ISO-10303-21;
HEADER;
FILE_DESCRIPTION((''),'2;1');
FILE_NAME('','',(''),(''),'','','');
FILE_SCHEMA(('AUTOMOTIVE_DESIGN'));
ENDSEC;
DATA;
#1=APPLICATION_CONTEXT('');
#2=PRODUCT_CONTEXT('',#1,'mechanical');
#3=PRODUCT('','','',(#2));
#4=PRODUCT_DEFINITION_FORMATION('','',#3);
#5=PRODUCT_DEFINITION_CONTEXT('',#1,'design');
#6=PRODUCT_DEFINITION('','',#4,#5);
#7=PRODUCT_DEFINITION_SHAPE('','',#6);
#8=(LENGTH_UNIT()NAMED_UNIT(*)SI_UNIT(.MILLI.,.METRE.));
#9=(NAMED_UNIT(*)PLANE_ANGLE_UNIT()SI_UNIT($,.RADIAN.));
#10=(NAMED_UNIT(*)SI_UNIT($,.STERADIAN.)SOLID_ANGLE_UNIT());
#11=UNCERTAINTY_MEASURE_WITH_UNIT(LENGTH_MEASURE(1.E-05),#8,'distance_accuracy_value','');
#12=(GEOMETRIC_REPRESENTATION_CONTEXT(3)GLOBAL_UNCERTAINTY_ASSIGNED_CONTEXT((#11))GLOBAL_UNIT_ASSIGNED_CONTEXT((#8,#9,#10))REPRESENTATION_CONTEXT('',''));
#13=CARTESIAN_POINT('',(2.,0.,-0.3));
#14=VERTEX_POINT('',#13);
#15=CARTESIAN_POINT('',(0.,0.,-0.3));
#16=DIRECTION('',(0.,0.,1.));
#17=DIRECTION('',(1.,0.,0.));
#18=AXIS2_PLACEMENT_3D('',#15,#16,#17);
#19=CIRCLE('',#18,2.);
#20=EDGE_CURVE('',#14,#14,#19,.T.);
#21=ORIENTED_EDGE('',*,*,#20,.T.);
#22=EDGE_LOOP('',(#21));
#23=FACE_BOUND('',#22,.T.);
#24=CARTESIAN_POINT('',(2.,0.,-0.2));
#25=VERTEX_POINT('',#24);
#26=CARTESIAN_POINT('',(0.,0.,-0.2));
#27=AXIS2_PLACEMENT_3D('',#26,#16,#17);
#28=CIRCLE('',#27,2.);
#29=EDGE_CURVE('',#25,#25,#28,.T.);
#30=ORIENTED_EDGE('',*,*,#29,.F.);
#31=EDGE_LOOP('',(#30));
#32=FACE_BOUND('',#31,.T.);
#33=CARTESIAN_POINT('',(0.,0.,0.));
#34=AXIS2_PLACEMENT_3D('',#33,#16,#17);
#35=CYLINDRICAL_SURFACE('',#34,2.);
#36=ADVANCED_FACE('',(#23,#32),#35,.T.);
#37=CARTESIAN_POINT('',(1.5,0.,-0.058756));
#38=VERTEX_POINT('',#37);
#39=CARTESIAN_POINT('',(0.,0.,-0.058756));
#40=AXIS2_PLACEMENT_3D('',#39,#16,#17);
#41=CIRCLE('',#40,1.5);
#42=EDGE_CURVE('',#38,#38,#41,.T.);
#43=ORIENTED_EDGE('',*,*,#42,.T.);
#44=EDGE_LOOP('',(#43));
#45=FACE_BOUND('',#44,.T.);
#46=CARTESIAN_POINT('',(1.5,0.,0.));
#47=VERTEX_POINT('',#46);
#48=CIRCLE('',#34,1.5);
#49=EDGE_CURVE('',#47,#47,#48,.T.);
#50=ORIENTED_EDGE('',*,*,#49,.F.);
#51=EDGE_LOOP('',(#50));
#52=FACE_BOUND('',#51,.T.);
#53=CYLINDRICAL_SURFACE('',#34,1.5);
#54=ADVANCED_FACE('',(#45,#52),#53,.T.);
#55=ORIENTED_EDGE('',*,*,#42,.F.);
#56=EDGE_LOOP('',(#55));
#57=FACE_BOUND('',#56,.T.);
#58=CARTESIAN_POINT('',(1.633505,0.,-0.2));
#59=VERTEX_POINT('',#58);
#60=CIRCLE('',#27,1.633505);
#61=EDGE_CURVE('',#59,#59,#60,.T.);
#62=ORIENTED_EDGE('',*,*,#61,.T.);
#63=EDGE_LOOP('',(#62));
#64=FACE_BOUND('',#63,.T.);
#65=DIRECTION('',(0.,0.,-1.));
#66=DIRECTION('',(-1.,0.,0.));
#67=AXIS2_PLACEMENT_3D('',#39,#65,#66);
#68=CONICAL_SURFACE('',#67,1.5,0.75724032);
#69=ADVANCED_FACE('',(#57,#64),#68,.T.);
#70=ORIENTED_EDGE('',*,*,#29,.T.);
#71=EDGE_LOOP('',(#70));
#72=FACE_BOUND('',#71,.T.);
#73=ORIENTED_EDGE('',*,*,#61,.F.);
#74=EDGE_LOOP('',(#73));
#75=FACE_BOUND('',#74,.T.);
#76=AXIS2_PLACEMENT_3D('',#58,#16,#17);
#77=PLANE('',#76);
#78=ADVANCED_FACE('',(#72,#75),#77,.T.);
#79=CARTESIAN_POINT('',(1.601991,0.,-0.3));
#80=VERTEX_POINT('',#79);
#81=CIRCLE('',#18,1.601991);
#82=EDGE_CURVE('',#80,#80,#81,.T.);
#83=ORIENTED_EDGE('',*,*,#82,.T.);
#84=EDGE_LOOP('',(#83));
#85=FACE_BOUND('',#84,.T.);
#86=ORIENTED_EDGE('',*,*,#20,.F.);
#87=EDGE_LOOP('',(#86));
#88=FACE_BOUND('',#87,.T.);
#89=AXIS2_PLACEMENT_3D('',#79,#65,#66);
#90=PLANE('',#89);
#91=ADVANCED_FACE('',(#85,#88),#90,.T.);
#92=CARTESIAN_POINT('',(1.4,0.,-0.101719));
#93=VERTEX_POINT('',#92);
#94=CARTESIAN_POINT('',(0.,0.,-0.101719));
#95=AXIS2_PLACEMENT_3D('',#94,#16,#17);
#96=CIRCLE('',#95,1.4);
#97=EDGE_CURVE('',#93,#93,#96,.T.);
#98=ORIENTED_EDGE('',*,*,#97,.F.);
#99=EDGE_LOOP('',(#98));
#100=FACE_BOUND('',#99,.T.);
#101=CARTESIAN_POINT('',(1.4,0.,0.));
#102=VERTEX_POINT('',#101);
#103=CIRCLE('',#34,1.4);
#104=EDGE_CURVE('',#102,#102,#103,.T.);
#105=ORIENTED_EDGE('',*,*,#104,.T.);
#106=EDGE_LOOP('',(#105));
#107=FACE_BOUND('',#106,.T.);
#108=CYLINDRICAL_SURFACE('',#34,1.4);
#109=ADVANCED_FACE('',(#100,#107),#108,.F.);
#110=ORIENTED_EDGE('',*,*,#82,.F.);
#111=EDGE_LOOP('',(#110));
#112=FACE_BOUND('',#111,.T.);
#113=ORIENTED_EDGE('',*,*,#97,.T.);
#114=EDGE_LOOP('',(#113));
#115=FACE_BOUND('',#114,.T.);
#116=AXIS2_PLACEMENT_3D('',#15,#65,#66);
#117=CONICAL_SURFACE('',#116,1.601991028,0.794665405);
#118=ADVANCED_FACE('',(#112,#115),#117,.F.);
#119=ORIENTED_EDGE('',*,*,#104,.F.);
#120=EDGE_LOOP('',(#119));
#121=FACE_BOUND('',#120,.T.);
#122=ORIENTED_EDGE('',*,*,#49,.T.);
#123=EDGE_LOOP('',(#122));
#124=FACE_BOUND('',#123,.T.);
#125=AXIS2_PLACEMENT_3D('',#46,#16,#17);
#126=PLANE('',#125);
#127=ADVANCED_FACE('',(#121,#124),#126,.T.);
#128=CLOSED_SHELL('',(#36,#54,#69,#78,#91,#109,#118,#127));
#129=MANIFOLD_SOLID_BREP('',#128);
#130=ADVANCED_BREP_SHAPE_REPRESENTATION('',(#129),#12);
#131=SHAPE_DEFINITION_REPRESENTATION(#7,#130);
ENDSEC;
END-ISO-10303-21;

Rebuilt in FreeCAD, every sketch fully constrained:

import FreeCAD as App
import Part
import Sketcher

V = App.Vector

doc = App.newDocument("Part")
body = doc.addObject("PartDesign::Body", "Body")

# Sketch on XZ plane
sketch1 = body.newObject("Sketcher::SketchObject", "Sketch")
sketch1.AttachmentSupport = (doc.getObject("XZ_Plane"), [""])
sketch1.MapMode = "FlatFace"
sketch1.addGeometry([
    Part.LineSegment(V(1.5, 0, 0), V(1.5, -0.058756, 0)),  # 0
    Part.LineSegment(V(1.5, -0.058756, 0), V(1.633505, -0.2, 0)),  # 1
    Part.LineSegment(V(1.633505, -0.2, 0), V(2, -0.2, 0)),  # 2
    Part.LineSegment(V(2, -0.2, 0), V(2, -0.3, 0)),  # 3
    Part.LineSegment(V(2, -0.3, 0), V(1.601991, -0.3, 0)),  # 4
    Part.LineSegment(V(1.601991, -0.3, 0), V(1.4, -0.101719, 0)),  # 5
    Part.LineSegment(V(1.4, -0.101719, 0), V(1.4, 0, 0)),  # 6
    Part.LineSegment(V(1.4, 0, 0), V(1.5, 0, 0)),  # 7
], False)
sketch1.addConstraint([
    Sketcher.Constraint("Coincident", 0, 2, 1, 1),
    Sketcher.Constraint("Coincident", 1, 2, 2, 1),
    Sketcher.Constraint("Coincident", 2, 2, 3, 1),
    Sketcher.Constraint("Coincident", 3, 2, 4, 1),
    Sketcher.Constraint("Coincident", 4, 2, 5, 1),
    Sketcher.Constraint("Coincident", 5, 2, 6, 1),
    Sketcher.Constraint("Coincident", 6, 2, 7, 1),
    Sketcher.Constraint("Coincident", 7, 2, 0, 1),
    Sketcher.Constraint("Vertical", 0),
    Sketcher.Constraint("Horizontal", 2),
    Sketcher.Constraint("Vertical", 3),
    Sketcher.Constraint("Horizontal", 4),
    Sketcher.Constraint("Vertical", 6),
    Sketcher.Constraint("Horizontal", 7),
    Sketcher.Constraint("PointOnObject", 6, 2, -1),
    Sketcher.Constraint("Equal", 7, 3),
    Sketcher.Constraint("DistanceX", 7, 1, 7, 2, 0.1),
    Sketcher.Constraint("DistanceX", -1, 1, 2, 2, 2.0),
    Sketcher.Constraint("DistanceX", -1, 1, 0, 2, 1.5),
    Sketcher.Constraint("DistanceY", 1, 2, -1, 1, 0.2),
    Sketcher.Constraint("DistanceX", 4, 2, 4, 1, 0.398009),
    Sketcher.Constraint("DistanceY", 6, 1, 6, 2, 0.101719),
    Sketcher.Constraint("DistanceX", 2, 1, 2, 2, 0.366495),
    Sketcher.Constraint("DistanceY", 0, 2, 0, 1, 0.058756),
])
revolution = body.newObject("PartDesign::Revolution", "Revolution")
revolution.Profile = sketch1
revolution.ReferenceAxis = (sketch1, ["V_Axis"])
revolution.Angle = 360

doc.recompute()
